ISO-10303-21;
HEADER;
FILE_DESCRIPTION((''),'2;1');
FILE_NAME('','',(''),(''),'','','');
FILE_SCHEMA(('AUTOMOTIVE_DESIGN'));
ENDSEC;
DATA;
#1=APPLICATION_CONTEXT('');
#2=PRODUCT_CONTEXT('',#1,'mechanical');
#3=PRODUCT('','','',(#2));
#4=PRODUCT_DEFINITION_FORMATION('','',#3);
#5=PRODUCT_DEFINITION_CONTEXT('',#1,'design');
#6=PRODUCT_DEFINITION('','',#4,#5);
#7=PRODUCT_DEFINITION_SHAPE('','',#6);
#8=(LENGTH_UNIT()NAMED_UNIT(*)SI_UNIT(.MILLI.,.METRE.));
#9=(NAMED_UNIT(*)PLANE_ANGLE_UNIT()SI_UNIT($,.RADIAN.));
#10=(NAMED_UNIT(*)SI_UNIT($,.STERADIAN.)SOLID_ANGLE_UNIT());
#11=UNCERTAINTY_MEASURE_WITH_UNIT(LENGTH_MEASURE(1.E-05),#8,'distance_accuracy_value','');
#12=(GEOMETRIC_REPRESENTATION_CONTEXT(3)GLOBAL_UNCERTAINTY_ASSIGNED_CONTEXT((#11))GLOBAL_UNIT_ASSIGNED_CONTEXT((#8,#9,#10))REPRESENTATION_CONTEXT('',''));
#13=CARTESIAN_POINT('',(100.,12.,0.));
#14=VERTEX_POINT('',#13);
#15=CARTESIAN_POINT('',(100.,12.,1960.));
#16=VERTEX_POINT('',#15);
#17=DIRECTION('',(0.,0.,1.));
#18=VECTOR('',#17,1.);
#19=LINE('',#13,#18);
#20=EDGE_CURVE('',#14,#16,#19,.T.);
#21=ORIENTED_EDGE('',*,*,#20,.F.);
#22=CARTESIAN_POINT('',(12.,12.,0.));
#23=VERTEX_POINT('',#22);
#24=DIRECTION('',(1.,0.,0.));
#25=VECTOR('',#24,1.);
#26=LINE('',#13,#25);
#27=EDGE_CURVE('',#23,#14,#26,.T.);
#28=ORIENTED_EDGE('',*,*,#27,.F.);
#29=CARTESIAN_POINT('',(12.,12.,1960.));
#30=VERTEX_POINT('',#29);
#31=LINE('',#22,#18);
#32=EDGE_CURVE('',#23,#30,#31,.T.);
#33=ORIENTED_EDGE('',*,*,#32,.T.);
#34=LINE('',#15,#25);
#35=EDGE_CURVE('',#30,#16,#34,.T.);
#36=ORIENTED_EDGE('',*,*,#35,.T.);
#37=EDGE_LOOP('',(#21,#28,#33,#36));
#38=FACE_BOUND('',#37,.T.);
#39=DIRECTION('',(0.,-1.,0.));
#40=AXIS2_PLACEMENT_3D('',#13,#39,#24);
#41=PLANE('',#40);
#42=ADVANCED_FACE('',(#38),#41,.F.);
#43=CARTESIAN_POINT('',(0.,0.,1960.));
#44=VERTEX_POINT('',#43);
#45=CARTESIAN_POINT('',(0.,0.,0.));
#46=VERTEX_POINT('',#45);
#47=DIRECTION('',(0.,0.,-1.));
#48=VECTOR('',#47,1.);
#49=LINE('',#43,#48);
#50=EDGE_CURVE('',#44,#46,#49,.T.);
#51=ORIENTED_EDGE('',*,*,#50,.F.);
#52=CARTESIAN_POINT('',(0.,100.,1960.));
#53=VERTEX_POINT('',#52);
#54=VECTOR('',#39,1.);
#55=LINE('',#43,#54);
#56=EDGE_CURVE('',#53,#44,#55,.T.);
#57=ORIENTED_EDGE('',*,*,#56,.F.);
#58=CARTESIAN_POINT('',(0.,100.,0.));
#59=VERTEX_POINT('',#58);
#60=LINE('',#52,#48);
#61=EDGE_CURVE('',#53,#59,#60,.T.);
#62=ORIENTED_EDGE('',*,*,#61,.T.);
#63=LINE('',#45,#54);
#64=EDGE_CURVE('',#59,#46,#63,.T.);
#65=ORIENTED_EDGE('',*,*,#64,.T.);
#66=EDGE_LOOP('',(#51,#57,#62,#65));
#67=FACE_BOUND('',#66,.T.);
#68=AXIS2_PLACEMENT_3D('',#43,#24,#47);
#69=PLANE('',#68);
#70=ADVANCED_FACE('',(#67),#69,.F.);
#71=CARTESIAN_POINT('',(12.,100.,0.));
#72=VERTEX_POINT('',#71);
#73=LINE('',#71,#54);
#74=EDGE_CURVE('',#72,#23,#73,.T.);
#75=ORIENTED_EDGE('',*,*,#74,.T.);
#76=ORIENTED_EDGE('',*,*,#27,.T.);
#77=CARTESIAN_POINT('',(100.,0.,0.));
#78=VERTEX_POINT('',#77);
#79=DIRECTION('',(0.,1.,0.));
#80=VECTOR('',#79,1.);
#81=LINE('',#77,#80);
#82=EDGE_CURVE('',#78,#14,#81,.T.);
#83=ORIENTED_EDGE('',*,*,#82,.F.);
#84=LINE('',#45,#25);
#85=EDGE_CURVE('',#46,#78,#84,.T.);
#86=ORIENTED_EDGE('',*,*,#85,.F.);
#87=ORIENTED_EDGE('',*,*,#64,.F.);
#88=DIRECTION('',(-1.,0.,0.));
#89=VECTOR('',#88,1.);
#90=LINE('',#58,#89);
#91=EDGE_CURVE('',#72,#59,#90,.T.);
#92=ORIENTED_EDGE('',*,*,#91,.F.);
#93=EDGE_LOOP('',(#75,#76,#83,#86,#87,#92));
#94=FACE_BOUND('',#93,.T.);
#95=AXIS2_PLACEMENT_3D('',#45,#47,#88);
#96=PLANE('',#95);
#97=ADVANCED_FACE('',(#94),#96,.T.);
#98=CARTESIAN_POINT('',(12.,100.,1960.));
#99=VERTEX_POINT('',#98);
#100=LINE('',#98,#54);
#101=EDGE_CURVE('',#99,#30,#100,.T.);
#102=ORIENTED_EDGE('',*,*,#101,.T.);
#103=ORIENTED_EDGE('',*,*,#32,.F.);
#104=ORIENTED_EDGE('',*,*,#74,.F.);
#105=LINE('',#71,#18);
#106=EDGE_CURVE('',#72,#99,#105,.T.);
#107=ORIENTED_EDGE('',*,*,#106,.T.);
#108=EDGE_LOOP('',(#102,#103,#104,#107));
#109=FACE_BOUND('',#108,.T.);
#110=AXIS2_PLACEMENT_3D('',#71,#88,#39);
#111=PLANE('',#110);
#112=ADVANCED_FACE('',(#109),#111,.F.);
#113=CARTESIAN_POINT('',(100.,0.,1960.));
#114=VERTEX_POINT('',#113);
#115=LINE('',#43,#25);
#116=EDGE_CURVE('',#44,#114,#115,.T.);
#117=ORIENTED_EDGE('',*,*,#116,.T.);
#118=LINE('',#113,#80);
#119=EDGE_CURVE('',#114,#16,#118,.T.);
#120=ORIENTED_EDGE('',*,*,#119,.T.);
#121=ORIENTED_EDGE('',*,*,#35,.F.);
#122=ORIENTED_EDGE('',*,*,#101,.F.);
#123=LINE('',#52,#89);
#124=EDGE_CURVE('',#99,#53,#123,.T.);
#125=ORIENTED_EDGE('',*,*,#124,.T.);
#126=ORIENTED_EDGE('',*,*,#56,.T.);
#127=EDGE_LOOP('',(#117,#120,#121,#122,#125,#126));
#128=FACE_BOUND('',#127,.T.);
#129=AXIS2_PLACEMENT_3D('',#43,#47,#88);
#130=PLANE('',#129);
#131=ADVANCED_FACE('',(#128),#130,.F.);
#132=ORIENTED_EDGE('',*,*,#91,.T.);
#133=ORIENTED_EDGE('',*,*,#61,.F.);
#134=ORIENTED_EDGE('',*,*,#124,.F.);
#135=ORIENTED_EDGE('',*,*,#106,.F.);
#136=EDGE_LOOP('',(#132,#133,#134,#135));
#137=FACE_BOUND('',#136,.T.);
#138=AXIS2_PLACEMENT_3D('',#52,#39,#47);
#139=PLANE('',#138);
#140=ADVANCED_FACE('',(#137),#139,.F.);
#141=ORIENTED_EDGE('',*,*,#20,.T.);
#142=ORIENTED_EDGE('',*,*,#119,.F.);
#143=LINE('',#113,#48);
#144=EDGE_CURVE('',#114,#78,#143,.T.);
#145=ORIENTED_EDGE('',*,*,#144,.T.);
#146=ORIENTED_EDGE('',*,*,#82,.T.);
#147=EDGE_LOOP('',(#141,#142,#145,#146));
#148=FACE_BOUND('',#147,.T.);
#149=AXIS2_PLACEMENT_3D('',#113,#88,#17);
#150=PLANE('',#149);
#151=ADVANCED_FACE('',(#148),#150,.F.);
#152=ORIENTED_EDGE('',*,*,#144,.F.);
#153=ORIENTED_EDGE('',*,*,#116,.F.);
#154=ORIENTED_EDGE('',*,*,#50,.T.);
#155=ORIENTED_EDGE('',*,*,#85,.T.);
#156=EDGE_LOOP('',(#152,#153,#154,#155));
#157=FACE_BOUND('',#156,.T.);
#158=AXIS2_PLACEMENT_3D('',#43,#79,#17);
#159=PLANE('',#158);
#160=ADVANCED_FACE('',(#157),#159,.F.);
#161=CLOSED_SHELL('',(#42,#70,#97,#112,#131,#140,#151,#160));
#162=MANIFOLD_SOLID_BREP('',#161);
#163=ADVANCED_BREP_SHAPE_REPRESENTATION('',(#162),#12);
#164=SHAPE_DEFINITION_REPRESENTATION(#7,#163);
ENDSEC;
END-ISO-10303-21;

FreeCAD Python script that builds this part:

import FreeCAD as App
import Part
import Sketcher

doc = App.newDocument("Part")
params = doc.addObject("Spreadsheet::Sheet", "Params")
for row, (alias, value) in enumerate([
    ("sketch1_width", "100 mm"),
    ("pad1_length", "1960 mm"),
    ("sketch2_width", "88 mm"),
], start=1):
    params.set(f"A{row}", alias)
    params.set(f"B{row}", "=" + value)
    params.setAlias(f"B{row}", alias)

body = doc.addObject("PartDesign::Body", "Body")

# Sketch on XY plane
sketch1 = doc.addObject("Sketcher::SketchObject", "Sketch")
body.addObject(sketch1)
sketch1.AttachmentSupport = (doc.XY_Plane, [""])
sketch1.MapMode = "FlatFace"
sketch1.addGeometry([
    Part.LineSegment(App.Vector(0, 100, 0), App.Vector(0, 0, 0)),
    Part.LineSegment(App.Vector(0, 0, 0), App.Vector(100, 0, 0)),
    Part.LineSegment(App.Vector(100, 0, 0), App.Vector(100, 100, 0)),
    Part.LineSegment(App.Vector(100, 100, 0), App.Vector(0, 100, 0)),
], False)
sketch1.addConstraint([
    Sketcher.Constraint("Coincident", 0, 2, 1, 1),
    Sketcher.Constraint("Coincident", 1, 2, 2, 1),
    Sketcher.Constraint("Coincident", 2, 2, 3, 1),
    Sketcher.Constraint("Coincident", 3, 2, 0, 1),
    Sketcher.Constraint("Vertical", 0),
    Sketcher.Constraint("Horizontal", 1),
    Sketcher.Constraint("Vertical", 2),
    Sketcher.Constraint("Horizontal", 3),
    Sketcher.Constraint("Coincident", 0, 2, -1, 1),
    Sketcher.Constraint("Equal", 3, 0),
    Sketcher.Constraint("DistanceX", 1, 1, 1, 2, 100.0),
])
sketch1.setExpression("Constraints[10]", "Params.sketch1_width")
pad1 = doc.addObject("PartDesign::Pad", "Pad")
body.addObject(pad1)
pad1.Profile = sketch1
pad1.setExpression("Length", "Params.pad1_length")

# Sketch on XY plane
sketch2 = doc.addObject("Sketcher::SketchObject", "Sketch001")
body.addObject(sketch2)
sketch2.AttachmentSupport = (doc.XY_Plane, [""])
sketch2.MapMode = "FlatFace"
sketch2.AttachmentOffset = App.Placement(App.Vector(0, 0, 1960), App.Rotation())
sketch2.addGeometry([
    Part.LineSegment(App.Vector(12, 100, 0), App.Vector(12, 12, 0)),
    Part.LineSegment(App.Vector(12, 12, 0), App.Vector(100, 12, 0)),
    Part.LineSegment(App.Vector(100, 12, 0), App.Vector(100, 100, 0)),
    Part.LineSegment(App.Vector(100, 100, 0), App.Vector(12, 100, 0)),
], False)
sketch2.addConstraint([
    Sketcher.Constraint("Coincident", 0, 2, 1, 1),
    Sketcher.Constraint("Coincident", 1, 2, 2, 1),
    Sketcher.Constraint("Coincident", 2, 2, 3, 1),
    Sketcher.Constraint("Coincident", 3, 2, 0, 1),
    Sketcher.Constraint("Vertical", 0),
    Sketcher.Constraint("Horizontal", 1),
    Sketcher.Constraint("Vertical", 2),
    Sketcher.Constraint("Horizontal", 3),
    Sketcher.Constraint("Equal", 3, 0),
    Sketcher.Constraint("DistanceX", 1, 1, 1, 2, 88.0),
    Sketcher.Constraint("DistanceX", -1, 1, 0, 2, 12.0),
    Sketcher.Constraint("DistanceY", -1, 1, 0, 2, 12.0),
])
sketch2.setExpression("Constraints[9]", "Params.sketch2_width")
pocket1 = doc.addObject("PartDesign::Pocket", "Pocket")
body.addObject(pocket1)
pocket1.Profile = sketch2
pocket1.Type = "ThroughAll"

doc.recompute()
